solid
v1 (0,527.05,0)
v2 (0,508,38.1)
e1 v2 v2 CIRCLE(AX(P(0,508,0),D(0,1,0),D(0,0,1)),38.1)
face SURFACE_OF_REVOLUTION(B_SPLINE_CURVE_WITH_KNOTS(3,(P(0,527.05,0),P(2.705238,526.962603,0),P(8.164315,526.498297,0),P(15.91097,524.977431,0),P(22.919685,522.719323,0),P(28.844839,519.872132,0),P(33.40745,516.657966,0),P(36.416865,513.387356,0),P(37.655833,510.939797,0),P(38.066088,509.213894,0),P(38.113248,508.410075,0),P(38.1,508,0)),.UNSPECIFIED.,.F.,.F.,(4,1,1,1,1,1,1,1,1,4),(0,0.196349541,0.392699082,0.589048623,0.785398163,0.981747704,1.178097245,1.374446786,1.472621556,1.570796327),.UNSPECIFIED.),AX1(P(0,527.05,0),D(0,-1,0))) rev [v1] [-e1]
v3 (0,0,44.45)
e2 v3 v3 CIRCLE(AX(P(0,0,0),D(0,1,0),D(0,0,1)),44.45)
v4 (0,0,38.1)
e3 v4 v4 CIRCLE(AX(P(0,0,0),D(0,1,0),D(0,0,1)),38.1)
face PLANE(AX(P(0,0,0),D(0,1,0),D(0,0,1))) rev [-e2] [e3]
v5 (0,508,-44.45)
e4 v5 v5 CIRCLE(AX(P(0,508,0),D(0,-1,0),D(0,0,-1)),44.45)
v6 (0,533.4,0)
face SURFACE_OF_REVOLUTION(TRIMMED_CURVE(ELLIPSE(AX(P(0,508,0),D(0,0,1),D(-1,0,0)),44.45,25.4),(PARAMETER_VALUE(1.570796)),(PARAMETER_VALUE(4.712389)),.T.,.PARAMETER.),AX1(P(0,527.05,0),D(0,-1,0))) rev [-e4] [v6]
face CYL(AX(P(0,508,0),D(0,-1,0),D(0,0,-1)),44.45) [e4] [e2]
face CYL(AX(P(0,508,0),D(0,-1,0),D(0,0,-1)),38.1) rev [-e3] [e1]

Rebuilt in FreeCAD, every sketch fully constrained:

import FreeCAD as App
import Part
import Sketcher
from FreeCAD import Vector
Q = App.Units.Quantity

doc = App.newDocument("Part")
params = doc.addObject("Spreadsheet::Sheet", "Params")
for row, (alias, value) in enumerate([
    ("sketch1_diameter", "3 in"),
    ("sketch1_diameter2", "3.5 in"),
    ("pad1_length", "20 in"),
    ("revolution_angle", "360 deg"),
], start=1):
    params.set(f"A{row}", alias)
    params.set(f"B{row}", "=" + value)
    params.setAlias(f"B{row}", alias)

body = doc.addObject("PartDesign::Body", "Body")

# Sketch on XZ plane
sketch1 = doc.addObject("Sketcher::SketchObject", "Sketch")
body.addObject(sketch1)
sketch1.AttachmentSupport = (doc.XZ_Plane, [""])
sketch1.MapMode = "FlatFace"
sketch1.addGeometry([
    Part.Circle(Vector(0, 0, 0), Vector(0, 0, 1), 44.45),
    Part.Circle(Vector(0, 0, 0), Vector(0, 0, 1), 38.1),
], False)
sketch1.addConstraint([
    Sketcher.Constraint("Coincident", 0, 3, -1, 1),
    Sketcher.Constraint("Coincident", 1, 3, -1, 1),
    Sketcher.Constraint("Diameter", 1, Q("3 in")),
    Sketcher.Constraint("Diameter", 0, Q("3.5 in")),
])
sketch1.setExpression("Constraints[2]", "Params.sketch1_diameter")
sketch1.setExpression("Constraints[3]", "Params.sketch1_diameter2")
pad1 = doc.addObject("PartDesign::Pad", "Pad")
body.addObject(pad1)
pad1.Profile = sketch1
pad1.setExpression("Length", "Params.pad1_length")
pad1.Reversed = True
body2 = doc.addObject("PartDesign::Body", "Body001")

# Sketch on XY plane
sketch2 = doc.addObject("Sketcher::SketchObject", "Sketch001")
body2.addObject(sketch2)
sketch2.AttachmentSupport = (doc.getObject("XY_Plane001"), [""])
sketch2.MapMode = "FlatFace"
sketch2.addGeometry([
    Part.LineSegment(Vector(0, 533.4, 0), Vector(0, 527.05, 0)),
    Part.BSplineCurve([Vector(0, 527.05, 0), Vector(2.705238, 526.962603, 0), Vector(8.164315, 526.498297, 0), Vector(15.91097, 524.977431, 0), Vector(22.919685, 522.719323, 0), Vector(28.844839, 519.872132, 0), Vector(33.40745, 516.657966, 0), Vector(36.416865, 513.387356, 0), Vector(37.655833, 510.939797, 0), Vector(38.066088, 509.213894, 0), Vector(38.113248, 508.410075, 0), Vector(38.1, 508, 0)], [4, 1, 1, 1, 1, 1, 1, 1, 1, 4], [0, 0.196349541, 0.392699082, 0.589048623, 0.785398163, 0.981747704, 1.178097245, 1.374446786, 1.472621556, 1.570796327], False, 3, [1, 1, 1, 1, 1, 1, 1, 1, 1, 1, 1, 1], False),
    Part.LineSegment(Vector(38.1, 508, 0), Vector(44.45, 508, 0)),
    Part.BSplineCurve([Vector(44.45, 508, 0), Vector(44.45, 533.4, 0), Vector(0, 533.4, 0)], [3, 3], [3.141592654, 4.71238898], False, 2, [1, 0.707106781, 1], False),
], False)
sketch2.addConstraint([
    Sketcher.Constraint("Block", 1),
    Sketcher.Constraint("Block", 3),
    Sketcher.Constraint("Coincident", 0, 2, 1, 1),
    Sketcher.Constraint("Coincident", 1, 2, 2, 1),
    Sketcher.Constraint("Coincident", 2, 2, 3, 1),
    Sketcher.Constraint("Coincident", 3, 2, 0, 1),
])
revolution = doc.addObject("PartDesign::Revolution", "Revolution")
body2.addObject(revolution)
revolution.Profile = sketch2
revolution.ReferenceAxis = (sketch2, ["V_Axis"])
revolution.setExpression("Angle", "Params.revolution_angle")
doc.recompute()

boolean = doc.addObject("PartDesign::Boolean", "Boolean")
body2.addObject(boolean)
boolean.Type = "Fuse"
boolean.addObjects([body])

doc.recompute()
